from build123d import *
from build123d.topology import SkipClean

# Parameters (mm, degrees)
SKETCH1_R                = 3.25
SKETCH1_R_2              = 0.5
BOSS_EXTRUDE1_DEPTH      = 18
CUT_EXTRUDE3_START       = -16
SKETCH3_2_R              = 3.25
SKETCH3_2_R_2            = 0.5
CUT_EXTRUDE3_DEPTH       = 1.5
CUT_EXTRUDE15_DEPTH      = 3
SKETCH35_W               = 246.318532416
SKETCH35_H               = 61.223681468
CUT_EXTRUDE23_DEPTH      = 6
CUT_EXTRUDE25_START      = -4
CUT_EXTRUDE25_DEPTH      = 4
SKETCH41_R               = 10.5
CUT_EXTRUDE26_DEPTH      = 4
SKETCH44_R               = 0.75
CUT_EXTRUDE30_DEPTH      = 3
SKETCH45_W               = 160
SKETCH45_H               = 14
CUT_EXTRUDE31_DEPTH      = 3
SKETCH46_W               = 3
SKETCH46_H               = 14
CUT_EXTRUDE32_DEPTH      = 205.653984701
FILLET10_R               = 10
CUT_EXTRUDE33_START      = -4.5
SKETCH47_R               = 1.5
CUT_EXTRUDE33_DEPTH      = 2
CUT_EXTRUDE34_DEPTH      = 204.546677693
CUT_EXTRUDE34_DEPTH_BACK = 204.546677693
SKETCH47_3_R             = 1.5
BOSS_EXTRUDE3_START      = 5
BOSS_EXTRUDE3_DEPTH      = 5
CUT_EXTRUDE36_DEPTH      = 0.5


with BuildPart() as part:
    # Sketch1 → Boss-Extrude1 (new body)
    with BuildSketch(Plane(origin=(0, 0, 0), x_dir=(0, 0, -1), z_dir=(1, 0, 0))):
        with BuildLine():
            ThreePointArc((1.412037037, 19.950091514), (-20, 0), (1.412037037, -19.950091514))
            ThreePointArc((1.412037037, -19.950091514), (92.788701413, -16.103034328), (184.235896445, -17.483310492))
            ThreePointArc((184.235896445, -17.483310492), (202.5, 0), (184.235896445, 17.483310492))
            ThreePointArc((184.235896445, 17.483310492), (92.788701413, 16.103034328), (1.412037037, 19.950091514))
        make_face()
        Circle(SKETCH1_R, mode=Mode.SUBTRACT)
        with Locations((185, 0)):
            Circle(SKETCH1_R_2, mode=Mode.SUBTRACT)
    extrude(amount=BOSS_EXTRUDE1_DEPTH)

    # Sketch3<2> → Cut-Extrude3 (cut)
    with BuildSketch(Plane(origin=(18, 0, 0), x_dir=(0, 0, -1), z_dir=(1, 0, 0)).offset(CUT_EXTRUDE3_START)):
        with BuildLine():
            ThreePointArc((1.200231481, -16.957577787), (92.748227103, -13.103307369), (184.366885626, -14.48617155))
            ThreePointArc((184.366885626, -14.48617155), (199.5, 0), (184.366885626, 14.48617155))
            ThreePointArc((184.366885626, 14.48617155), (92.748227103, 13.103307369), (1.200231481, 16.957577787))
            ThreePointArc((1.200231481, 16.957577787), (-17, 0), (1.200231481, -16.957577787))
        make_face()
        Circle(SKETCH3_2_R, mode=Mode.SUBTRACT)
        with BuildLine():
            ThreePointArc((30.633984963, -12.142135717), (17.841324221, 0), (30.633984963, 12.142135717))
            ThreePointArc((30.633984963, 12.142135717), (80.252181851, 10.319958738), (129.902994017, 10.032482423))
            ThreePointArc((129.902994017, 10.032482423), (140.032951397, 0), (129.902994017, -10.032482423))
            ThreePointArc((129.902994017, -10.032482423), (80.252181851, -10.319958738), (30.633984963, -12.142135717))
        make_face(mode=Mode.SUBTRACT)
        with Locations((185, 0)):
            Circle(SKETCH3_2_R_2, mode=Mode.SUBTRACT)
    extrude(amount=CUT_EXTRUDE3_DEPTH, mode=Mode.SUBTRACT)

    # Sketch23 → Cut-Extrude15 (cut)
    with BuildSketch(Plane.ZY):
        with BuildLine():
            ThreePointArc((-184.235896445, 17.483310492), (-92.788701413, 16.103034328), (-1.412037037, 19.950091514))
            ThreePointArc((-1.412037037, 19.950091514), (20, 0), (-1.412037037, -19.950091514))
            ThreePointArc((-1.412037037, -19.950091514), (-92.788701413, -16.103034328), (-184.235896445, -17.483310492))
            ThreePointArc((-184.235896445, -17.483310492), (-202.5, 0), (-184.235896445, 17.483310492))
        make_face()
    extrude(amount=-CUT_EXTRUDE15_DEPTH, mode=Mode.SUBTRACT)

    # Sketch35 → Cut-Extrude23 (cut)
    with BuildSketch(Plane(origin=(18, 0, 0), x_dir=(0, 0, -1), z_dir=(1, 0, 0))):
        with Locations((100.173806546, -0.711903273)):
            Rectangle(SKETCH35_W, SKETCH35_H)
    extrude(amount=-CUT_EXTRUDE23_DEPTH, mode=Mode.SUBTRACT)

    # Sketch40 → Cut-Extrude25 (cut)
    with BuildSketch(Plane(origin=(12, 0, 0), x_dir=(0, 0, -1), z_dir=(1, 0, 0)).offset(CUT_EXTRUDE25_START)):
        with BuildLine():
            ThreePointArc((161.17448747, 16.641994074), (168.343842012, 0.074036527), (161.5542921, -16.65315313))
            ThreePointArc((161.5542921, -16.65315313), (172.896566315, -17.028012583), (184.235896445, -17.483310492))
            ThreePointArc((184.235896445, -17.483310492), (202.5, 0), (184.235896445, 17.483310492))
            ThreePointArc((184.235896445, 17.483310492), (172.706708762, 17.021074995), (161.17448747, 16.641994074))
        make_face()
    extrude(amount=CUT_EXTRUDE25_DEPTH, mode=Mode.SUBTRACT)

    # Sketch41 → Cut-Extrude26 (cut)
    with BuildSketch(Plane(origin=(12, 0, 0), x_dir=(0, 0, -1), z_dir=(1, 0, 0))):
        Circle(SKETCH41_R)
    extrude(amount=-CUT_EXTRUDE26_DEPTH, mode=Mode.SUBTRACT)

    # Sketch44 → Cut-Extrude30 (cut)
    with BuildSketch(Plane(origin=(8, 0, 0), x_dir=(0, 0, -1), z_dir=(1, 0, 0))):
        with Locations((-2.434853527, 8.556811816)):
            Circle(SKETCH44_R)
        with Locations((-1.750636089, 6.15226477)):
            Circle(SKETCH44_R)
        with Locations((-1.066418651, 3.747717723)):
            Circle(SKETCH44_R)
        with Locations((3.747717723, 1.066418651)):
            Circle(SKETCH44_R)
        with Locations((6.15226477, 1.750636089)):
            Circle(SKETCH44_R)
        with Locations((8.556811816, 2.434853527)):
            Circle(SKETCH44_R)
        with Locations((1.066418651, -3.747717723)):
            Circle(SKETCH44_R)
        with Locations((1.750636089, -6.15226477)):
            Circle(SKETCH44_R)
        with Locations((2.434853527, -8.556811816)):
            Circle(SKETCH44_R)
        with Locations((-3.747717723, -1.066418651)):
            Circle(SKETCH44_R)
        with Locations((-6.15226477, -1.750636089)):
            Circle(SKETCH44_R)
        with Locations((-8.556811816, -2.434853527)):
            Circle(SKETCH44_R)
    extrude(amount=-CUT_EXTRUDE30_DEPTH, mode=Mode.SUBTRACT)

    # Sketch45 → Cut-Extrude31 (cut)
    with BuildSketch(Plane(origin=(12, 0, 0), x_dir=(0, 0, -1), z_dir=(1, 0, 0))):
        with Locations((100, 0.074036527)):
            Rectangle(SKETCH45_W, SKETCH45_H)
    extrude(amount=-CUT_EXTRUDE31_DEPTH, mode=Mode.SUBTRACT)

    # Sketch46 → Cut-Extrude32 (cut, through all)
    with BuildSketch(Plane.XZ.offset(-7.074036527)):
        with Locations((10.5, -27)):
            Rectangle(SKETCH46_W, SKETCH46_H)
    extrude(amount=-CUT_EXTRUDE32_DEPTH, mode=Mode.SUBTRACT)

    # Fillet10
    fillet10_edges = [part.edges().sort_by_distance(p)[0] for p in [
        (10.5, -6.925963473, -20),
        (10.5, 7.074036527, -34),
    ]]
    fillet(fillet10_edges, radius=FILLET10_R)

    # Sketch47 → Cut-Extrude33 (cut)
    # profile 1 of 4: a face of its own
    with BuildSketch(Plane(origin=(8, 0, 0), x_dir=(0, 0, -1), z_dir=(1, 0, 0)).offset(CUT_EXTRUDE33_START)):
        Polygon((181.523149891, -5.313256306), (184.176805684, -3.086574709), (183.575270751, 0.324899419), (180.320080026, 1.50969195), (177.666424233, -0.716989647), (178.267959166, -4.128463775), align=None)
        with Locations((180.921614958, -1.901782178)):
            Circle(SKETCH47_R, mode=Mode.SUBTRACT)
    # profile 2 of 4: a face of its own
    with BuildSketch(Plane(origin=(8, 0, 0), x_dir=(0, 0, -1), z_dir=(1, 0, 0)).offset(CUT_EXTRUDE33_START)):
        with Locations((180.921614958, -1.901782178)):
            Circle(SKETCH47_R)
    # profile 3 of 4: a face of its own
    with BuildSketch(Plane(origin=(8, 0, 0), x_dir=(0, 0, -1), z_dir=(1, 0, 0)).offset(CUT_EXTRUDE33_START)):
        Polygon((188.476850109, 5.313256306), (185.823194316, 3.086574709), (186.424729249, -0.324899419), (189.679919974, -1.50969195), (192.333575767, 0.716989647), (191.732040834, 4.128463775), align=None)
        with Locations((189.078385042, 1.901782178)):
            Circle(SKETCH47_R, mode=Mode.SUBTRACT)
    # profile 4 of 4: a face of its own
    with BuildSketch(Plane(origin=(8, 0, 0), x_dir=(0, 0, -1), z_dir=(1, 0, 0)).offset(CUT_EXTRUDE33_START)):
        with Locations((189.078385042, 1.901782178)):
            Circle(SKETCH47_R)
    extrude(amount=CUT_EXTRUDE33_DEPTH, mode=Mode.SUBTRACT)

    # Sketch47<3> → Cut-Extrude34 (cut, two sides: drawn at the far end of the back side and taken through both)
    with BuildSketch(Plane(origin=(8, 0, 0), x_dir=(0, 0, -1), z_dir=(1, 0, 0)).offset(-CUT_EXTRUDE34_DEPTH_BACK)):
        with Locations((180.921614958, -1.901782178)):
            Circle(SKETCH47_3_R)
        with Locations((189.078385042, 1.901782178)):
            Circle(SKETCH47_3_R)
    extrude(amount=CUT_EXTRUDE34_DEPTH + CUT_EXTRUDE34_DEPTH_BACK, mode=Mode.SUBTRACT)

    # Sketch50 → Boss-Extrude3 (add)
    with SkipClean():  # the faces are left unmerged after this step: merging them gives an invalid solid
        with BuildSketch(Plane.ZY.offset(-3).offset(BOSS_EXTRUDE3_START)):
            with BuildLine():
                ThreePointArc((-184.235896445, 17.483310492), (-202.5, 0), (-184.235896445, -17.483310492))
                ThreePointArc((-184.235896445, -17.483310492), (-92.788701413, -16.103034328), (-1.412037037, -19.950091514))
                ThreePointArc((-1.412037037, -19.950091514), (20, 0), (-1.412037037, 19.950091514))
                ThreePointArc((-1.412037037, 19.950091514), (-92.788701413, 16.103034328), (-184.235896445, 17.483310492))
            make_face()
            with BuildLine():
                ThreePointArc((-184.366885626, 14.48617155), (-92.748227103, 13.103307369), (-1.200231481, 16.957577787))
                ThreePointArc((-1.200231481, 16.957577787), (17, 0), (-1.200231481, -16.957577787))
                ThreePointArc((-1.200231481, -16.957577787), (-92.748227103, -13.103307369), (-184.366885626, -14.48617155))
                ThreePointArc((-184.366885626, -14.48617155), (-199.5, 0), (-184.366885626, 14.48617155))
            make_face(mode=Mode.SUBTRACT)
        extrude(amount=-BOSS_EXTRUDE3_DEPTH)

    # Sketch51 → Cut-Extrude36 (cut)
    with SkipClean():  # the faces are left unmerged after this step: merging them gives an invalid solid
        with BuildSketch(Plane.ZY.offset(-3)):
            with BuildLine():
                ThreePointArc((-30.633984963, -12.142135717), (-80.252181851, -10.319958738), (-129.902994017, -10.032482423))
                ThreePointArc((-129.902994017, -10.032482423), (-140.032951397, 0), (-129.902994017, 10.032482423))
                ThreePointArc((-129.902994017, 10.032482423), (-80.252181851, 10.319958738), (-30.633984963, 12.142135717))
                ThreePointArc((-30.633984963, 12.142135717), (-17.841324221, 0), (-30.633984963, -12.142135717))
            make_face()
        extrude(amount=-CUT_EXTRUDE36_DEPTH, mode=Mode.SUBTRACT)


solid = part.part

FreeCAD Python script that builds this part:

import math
import FreeCAD as App
import Part
import Sketcher

V = App.Vector
Q = App.Units.Quantity


def edges_at(feature, points):
    """Names of the edges that pass closest to the given points."""
    edges = feature.Shape.Edges
    near = lambda p: min(range(len(edges)), key=lambda i: edges[i].distToShape(Part.Vertex(*p))[0])
    return sorted({f"Edge{near(p) + 1}" for p in points})


def add_polygon(sketch, points):
    """Adds a closed chain of lines whose ends are joined by coincident constraints."""
    first, n = sketch.GeometryCount, len(points)
    for a, b in zip(points, points[1:] + points[:1]):
        sketch.addGeometry(Part.LineSegment(App.Vector(*a, 0), App.Vector(*b, 0)), False)
    for i in range(n):
        sketch.addConstraint(Sketcher.Constraint("Coincident", first + i, 2, first + (i + 1) % n, 1))

doc = App.newDocument("Part")
body = doc.addObject("PartDesign::Body", "Body")

sketch1 = doc.addObject("Sketcher::SketchObject", "Sketch")
body.addObject(sketch1)
sketch1.AttachmentSupport = (doc.YZ_Plane, [""])
sketch1.MapMode = "FlatFace"
sketch1.addGeometry([
    Part.ArcOfCircle(Part.Circle(V(0, 0, 0), V(0, 0, 1), 20), math.radians(-4), math.radians(184)),
    Part.ArcOfCircle(Part.Circle(V(-1616, -114.4, 0), V(0, 0, 1), 1600), math.radians(-2.5), math.radians(4.05)),
    Part.ArcOfCircle(Part.Circle(V(0, -185, 0), V(0, 0, 1), 17.5), math.radians(177), math.radians(363)),
    Part.ArcOfCircle(Part.Circle(V(1616, -114.4, 0), V(0, 0, 1), 1600), math.radians(175.95), math.radians(182.5)),
    Part.Circle(V(0, 0, 0), V(0, 0, 1), 3.2),
    Part.Circle(V(0, -185, 0), V(0, 0, 1), 0.5),
], False)
sketch1.addConstraint([
    Sketcher.Constraint("Tangent", 0, 2, 1, 2),
    Sketcher.Constraint("Tangent", 1, 1, 2, 1),
    Sketcher.Constraint("Tangent", 2, 2, 3, 2),
    Sketcher.Constraint("Tangent", 3, 1, 0, 1),
    Sketcher.Constraint("Coincident", 0, 3, -1, 1),
    Sketcher.Constraint("Coincident", 4, 3, -1, 1),
    Sketcher.Constraint("Coincident", 5, 3, 2, 3),
    Sketcher.Constraint("Equal", 1, 3),
    Sketcher.Constraint("PointOnObject", 2, 3, -2),
    Sketcher.Constraint("Diameter", 5, 1.0),
    Sketcher.Constraint("Radius", 0, 20.0),
    Sketcher.Constraint("Radius", 1, 1600.0),
    Sketcher.Constraint("Diameter", 4, 6.5),
    Sketcher.Constraint("Radius", 2, 17.5),
    Sketcher.Constraint("DistanceY", 2, 3, -1, 1, 185.0),
])
pad1 = doc.addObject("PartDesign::Pad", "Pad")
body.addObject(pad1)
pad1.Profile = sketch1
pad1.Length = 18

sketch2 = doc.addObject("Sketcher::SketchObject", "Sketch001")
body.addObject(sketch2)
sketch2.AttachmentSupport = (doc.YZ_Plane, [""])
sketch2.MapMode = "FlatFace"
sketch2.AttachmentOffset = App.Placement(V(0, 0, 2), App.Rotation())
sketch2.addGeometry([
    Part.ArcOfCircle(Part.Circle(V(-1616, -114.4, 0), V(0, 0, 1), 1603), math.radians(-2.5), math.radians(4.05)),
    Part.ArcOfCircle(Part.Circle(V(0, -185, 0), V(0, 0, 1), 14.5), math.radians(177), math.radians(363)),
    Part.ArcOfCircle(Part.Circle(V(1616, -114.4, 0), V(0, 0, 1), 1603), math.radians(175.95), math.radians(182.5)),
    Part.ArcOfCircle(Part.Circle(V(0, 0, 0), V(0, 0, 1), 17), math.radians(-4), math.radians(184)),
    Part.Circle(V(0, 0, 0), V(0, 0, 1), 3.2),
    Part.ArcOfCircle(Part.Circle(V(-1616, -114.4, 0), V(0, 0, 1), 1606), math.radians(-0.55), math.radians(2.99)),
    Part.ArcOfCircle(Part.Circle(V(0, -30, 0), V(0, 0, 1), 12.2), math.radians(-3), math.radians(183)),
    Part.ArcOfCircle(Part.Circle(V(1616, -114.4, 0), V(0, 0, 1), 1606), math.radians(177.01), math.radians(180.55)),
    Part.ArcOfCircle(Part.Circle(V(0, -130, 0), V(0, 0, 1), 10), math.radians(179), math.radians(361)),
    Part.Circle(V(0, -185, 0), V(0, 0, 1), 0.5),
], False)
sketch2.addConstraint([
    Sketcher.Constraint("Tangent", 0, 1, 1, 1),
    Sketcher.Constraint("Tangent", 1, 2, 2, 2),
    Sketcher.Constraint("Tangent", 2, 1, 3, 1),
    Sketcher.Constraint("Tangent", 3, 2, 0, 2),
    Sketcher.Constraint("Tangent", 5, 2, 6, 2),
    Sketcher.Constraint("Tangent", 6, 1, 7, 1),
    Sketcher.Constraint("Tangent", 7, 2, 8, 2),
    Sketcher.Constraint("Tangent", 8, 1, 5, 1),
    Sketcher.Constraint("Coincident", 3, 3, -1, 1),
    Sketcher.Constraint("Coincident", 4, 3, -1, 1),
    Sketcher.Constraint("Coincident", 5, 3, 0, 3),
    Sketcher.Constraint("Coincident", 7, 3, 2, 3),
    Sketcher.Constraint("Coincident", 9, 3, 1, 3),
    Sketcher.Constraint("Equal", 0, 2),
    Sketcher.Constraint("Equal", 5, 7),
    Sketcher.Constraint("PointOnObject", 1, 3, -2),
    Sketcher.Constraint("Diameter", 9, 1.0),
    Sketcher.Constraint("Radius", 0, 1603.0),
    Sketcher.Constraint("Radius", 3, 17.0),
    Sketcher.Constraint("Radius", 5, 1606.0),
    Sketcher.Constraint("Diameter", 4, 6.5),
    Sketcher.Constraint("Radius", 1, 14.5),
    Sketcher.Constraint("DistanceY", 1, 3, -1, 1, 185.0),
    Sketcher.Constraint("DistanceY", 6, 3, -1, 1, 30.0),
    Sketcher.Constraint("DistanceY", 8, 3, -1, 1, 130.0),
])
pocket1 = doc.addObject("PartDesign::Pocket", "Pocket")
body.addObject(pocket1)
pocket1.Profile = sketch2
pocket1.Length = 1.5
pocket1.Reversed = True

sketch3 = doc.addObject("Sketcher::SketchObject", "Sketch002")
body.addObject(sketch3)
sketch3.AttachmentSupport = (doc.YZ_Plane, [""])
sketch3.MapMode = "FlatFace"
sketch3.addGeometry([
    Part.ArcOfCircle(Part.Circle(V(1616, -114, 0), V(0, 0, 1), 1600), math.radians(175.95), math.radians(182.5)),
    Part.ArcOfCircle(Part.Circle(V(0, -185, 0), V(0, 0, 1), 18), math.radians(177), math.radians(363)),
    Part.ArcOfCircle(Part.Circle(V(-1616, -114, 0), V(0, 0, 1), 1600), math.radians(-2.5), math.radians(4.05)),
    Part.ArcOfCircle(Part.Circle(V(0, 0, 0), V(0, 0, 1), 20), math.radians(-4), math.radians(184)),
], False)
sketch3.addConstraint([
    Sketcher.Constraint("Tangent", 0, 2, 1, 2),
    Sketcher.Constraint("Tangent", 1, 1, 2, 1),
    Sketcher.Constraint("Tangent", 2, 2, 3, 2),
    Sketcher.Constraint("Tangent", 3, 1, 0, 1),
    Sketcher.Constraint("Coincident", 3, 3, -1, 1),
    Sketcher.Constraint("Equal", 0, 2),
    Sketcher.Constraint("PointOnObject", 1, 3, -2),
    Sketcher.Constraint("Radius", 0, 1600.0),
    Sketcher.Constraint("Radius", 3, 20.0),
    Sketcher.Constraint("Radius", 1, 17.5),
    Sketcher.Constraint("DistanceY", 1, 3, -1, 1, 185.0),
])
pocket2 = doc.addObject("PartDesign::Pocket", "Pocket001")
body.addObject(pocket2)
pocket2.Profile = sketch3
pocket2.Length = 3
pocket2.Reversed = True

sketch4 = doc.addObject("Sketcher::SketchObject", "Sketch003")
body.addObject(sketch4)
sketch4.AttachmentSupport = (doc.YZ_Plane, [""])
sketch4.MapMode = "FlatFace"
sketch4.AttachmentOffset = App.Placement(V(0, 0, 18), App.Rotation())
add_polygon(sketch4, [(30, 23), (-31, 23), (-31, -223), (30, -223)])
sketch4.addConstraint([
    Sketcher.Constraint("Horizontal", 0),
    Sketcher.Constraint("Vertical", 1),
    Sketcher.Constraint("Horizontal", 2),
    Sketcher.Constraint("Vertical", 3),
    Sketcher.Constraint("DistanceX", 0, 2, 0, 1, 61.223681),
    Sketcher.Constraint("DistanceY", 1, 2, 1, 1, 246.318532),
    Sketcher.Constraint("DistanceY", -1, 1, 0, 2, 22.98546),
    Sketcher.Constraint("DistanceX", 0, 2, -1, 1, 31.323744),
])
pocket3 = doc.addObject("PartDesign::Pocket", "Pocket002")
body.addObject(pocket3)
pocket3.Profile = sketch4
pocket3.Length = 6

sketch5 = doc.addObject("Sketcher::SketchObject", "Sketch004")
body.addObject(sketch5)
sketch5.AttachmentSupport = (doc.YZ_Plane, [""])
sketch5.MapMode = "FlatFace"
sketch5.AttachmentOffset = App.Placement(V(0, 0, 8), App.Rotation())
sketch5.addGeometry([
    Part.ArcOfCircle(Part.Circle(V(0, -145, 0), V(0, 0, 1), 23), math.radians(-135), math.radians(-44)),
    Part.ArcOfCircle(Part.Circle(V(-1616, -114, 0), V(0, 0, 1), 1600), math.radians(-2.5), math.radians(-1.69)),
    Part.ArcOfCircle(Part.Circle(V(0, -185, 0), V(0, 0, 1), 18), math.radians(177), math.radians(363)),
    Part.ArcOfCircle(Part.Circle(V(1616, -114, 0), V(0, 0, 1), 1600), math.radians(-178.32), math.radians(-177.5)),
], False)
sketch5.addConstraint([
    Sketcher.Constraint("Coincident", 0, 1, 1, 2),
    Sketcher.Constraint("Tangent", 1, 1, 2, 1),
    Sketcher.Constraint("Tangent", 2, 2, 3, 2),
    Sketcher.Constraint("Coincident", 3, 1, 0, 2),
    Sketcher.Constraint("PointOnObject", 2, 3, -2),
    Sketcher.Constraint("Horizontal", 1, 3, 3, 3),
    Sketcher.Constraint("Radius", 2, 17.5),
    Sketcher.Constraint("DistanceY", 0, 3, -1, 1, 145.0),
    Sketcher.Constraint("DistanceY", 2, 3, -1, 1, 185.0),
    Sketcher.Constraint("Radius", 0, 23.345361),
    Sketcher.Constraint("Radius", 1, 1599.999992),
    Sketcher.Constraint("DistanceY", 1, 3, -1, 1, 114.375),
    Sketcher.Constraint("Radius", 3, 1600.000018),
    Sketcher.Constraint("DistanceX", 0, 1, 0, 3, 16.460902),
])
pocket4 = doc.addObject("PartDesign::Pocket", "Pocket003")
body.addObject(pocket4)
pocket4.Profile = sketch5
pocket4.Length = 4
pocket4.Reversed = True

sketch6 = doc.addObject("Sketcher::SketchObject", "Sketch005")
body.addObject(sketch6)
sketch6.AttachmentSupport = (doc.YZ_Plane, [""])
sketch6.MapMode = "FlatFace"
sketch6.AttachmentOffset = App.Placement(V(0, 0, 12), App.Rotation())
sketch6.addGeometry(Part.Circle(V(0, 0, 0), V(0, 0, 1), 10), False)
sketch6.addConstraint([
    Sketcher.Constraint("Coincident", 0, 3, -1, 1),
    Sketcher.Constraint("Diameter", 0, 21.0),
])
pocket5 = doc.addObject("PartDesign::Pocket", "Pocket004")
body.addObject(pocket5)
pocket5.Profile = sketch6
pocket5.Length = 4

sketch7 = doc.addObject("Sketcher::SketchObject", "Sketch006")
body.addObject(sketch7)
sketch7.AttachmentSupport = (doc.YZ_Plane, [""])
sketch7.MapMode = "FlatFace"
sketch7.AttachmentOffset = App.Placement(V(0, 0, 8), App.Rotation())
sketch7.addGeometry([
    Part.Circle(V(8.6, 2.4, 0), V(0, 0, 1), 0.8),
    Part.Circle(V(6.2, 1.8, 0), V(0, 0, 1), 0.8),
    Part.Circle(V(3.7, 1.1, 0), V(0, 0, 1), 0.8),
    Part.Circle(V(1.1, -3.7, 0), V(0, 0, 1), 0.8),
    Part.Circle(V(1.8, -6.2, 0), V(0, 0, 1), 0.8),
    Part.Circle(V(2.4, -8.6, 0), V(0, 0, 1), 0.8),
    Part.Circle(V(-3.7, -1.1, 0), V(0, 0, 1), 0.8),
    Part.Circle(V(-6.2, -1.8, 0), V(0, 0, 1), 0.8),
    Part.Circle(V(-8.6, -2.4, 0), V(0, 0, 1), 0.8),
    Part.Circle(V(-1.1, 3.7, 0), V(0, 0, 1), 0.8),
    Part.Circle(V(-1.8, 6.2, 0), V(0, 0, 1), 0.8),
    Part.Circle(V(-2.4, 8.6, 0), V(0, 0, 1), 0.8),
], False)
sketch7.addConstraint([
    Sketcher.Constraint("Equal", 0, 1),
    Sketcher.Constraint("Equal", 1, 2),
    Sketcher.Constraint("Equal", 2, 3),
    Sketcher.Constraint("Equal", 3, 4),
    Sketcher.Constraint("Equal", 4, 5),
    Sketcher.Constraint("Equal", 5, 6),
    Sketcher.Constraint("Equal", 6, 7),
    Sketcher.Constraint("Equal", 7, 8),
    Sketcher.Constraint("Equal", 8, 9),
    Sketcher.Constraint("Equal", 9, 10),
    Sketcher.Constraint("Equal", 10, 11),
    Sketcher.Constraint("Symmetric", 2, 3, 6, 3, -1, 1),
    Sketcher.Constraint("Symmetric", 1, 3, 7, 3, -1, 1),
    Sketcher.Constraint("Symmetric", 0, 3, 8, 3, -1, 1),
    Sketcher.Constraint("Symmetric", 3, 3, 9, 3, -1, 1),
    Sketcher.Constraint("Symmetric", 4, 3, 10, 3, -1, 1),
    Sketcher.Constraint("Symmetric", 5, 3, 11, 3, -1, 1),
    Sketcher.Constraint("Diameter", 0, 1.5),
    Sketcher.Constraint("DistanceX", 3, 3, 2, 3, 2.681299),
    Sketcher.Constraint("DistanceY", 4, 3, 1, 3, 7.902901),
    Sketcher.Constraint("DistanceY", 3, 3, 6, 3, 2.681299),
    Sketcher.Constraint("DistanceX", 7, 3, 4, 3, 7.902901),
    Sketcher.Constraint("DistanceX", -1, 1, 0, 3, 8.556812),
    Sketcher.Constraint("DistanceY", -1, 1, 2, 3, 1.066419),
    Sketcher.Constraint("DistanceX", -1, 1, 3, 3, 1.066419),
    Sketcher.Constraint("DistanceY", 5, 3, -1, 1, 8.556812),
    Sketcher.Constraint("DistanceY", 3, 3, 0, 3, 6.182571),
    Sketcher.Constraint("DistanceX", 4, 3, 2, 3, 1.997082),
    Sketcher.Constraint("DistanceY", 4, 3, 0, 3, 8.587118),
    Sketcher.Constraint("DistanceX", 5, 3, 1, 3, 3.717411),
])
pocket6 = doc.addObject("PartDesign::Pocket", "Pocket005")
body.addObject(pocket6)
pocket6.Profile = sketch7
pocket6.Length = 3

sketch8 = doc.addObject("Sketcher::SketchObject", "Sketch007")
body.addObject(sketch8)
sketch8.AttachmentSupport = (doc.YZ_Plane, [""])
sketch8.MapMode = "FlatFace"
sketch8.AttachmentOffset = App.Placement(V(0, 0, 12), App.Rotation())
add_polygon(sketch8, [(7, -20), (-7, -20), (-7, -180), (7, -180)])
sketch8.addConstraint([
    Sketcher.Constraint("Horizontal", 0),
    Sketcher.Constraint("Vertical", 1),
    Sketcher.Constraint("Horizontal", 2),
    Sketcher.Constraint("Vertical", 3),
    Sketcher.Constraint("DistanceX", 0, 2, 0, 1, 14.0),
    Sketcher.Constraint("DistanceY", 1, 2, 1, 1, 160.0),
    Sketcher.Constraint("DistanceY", 0, 2, -1, 1, 20.0),
    Sketcher.Constraint("DistanceX", 0, 2, -1, 1, 6.925963),
])
pocket7 = doc.addObject("PartDesign::Pocket", "Pocket006")
body.addObject(pocket7)
pocket7.Profile = sketch8
pocket7.Length = 3

sketch9 = doc.addObject("Sketcher::SketchObject", "Sketch008")
body.addObject(sketch9)
sketch9.AttachmentSupport = (doc.XZ_Plane, [""])
sketch9.MapMode = "FlatFace"
sketch9.AttachmentOffset = App.Placement(V(0, 0, -7.074037), App.Rotation())
add_polygon(sketch9, [(9, -20), (9, -34), (12, -34), (12, -20)])
sketch9.addConstraint([
    Sketcher.Constraint("Vertical", 0),
    Sketcher.Constraint("Horizontal", 1),
    Sketcher.Constraint("Vertical", 2),
    Sketcher.Constraint("Horizontal", 3),
    Sketcher.Constraint("DistanceX", 1, 1, 1, 2, 3.0),
    Sketcher.Constraint("DistanceY", 0, 2, 0, 1, 14.0),
    Sketcher.Constraint("DistanceX", -1, 1, 0, 2, 9.0),
    Sketcher.Constraint("DistanceY", 0, 2, -1, 1, 34.0),
])
pocket8 = doc.addObject("PartDesign::Pocket", "Pocket007")
body.addObject(pocket8)
pocket8.Profile = sketch9
pocket8.Type = "ThroughAll"
doc.recompute()

fillet = doc.addObject("PartDesign::Fillet", "Fillet")
body.addObject(fillet)
fillet.Base = (pocket8, edges_at(pocket8, [(10.5, -6.926, -20), (10.5, 7.074, -34)]))
fillet.Radius = 10

sketch10 = doc.addObject("Sketcher::SketchObject", "Sketch009")
body.addObject(sketch10)
sketch10.AttachmentSupport = (doc.YZ_Plane, [""])
sketch10.MapMode = "FlatFace"
sketch10.AttachmentOffset = App.Placement(V(0, 0, 3.5), App.Rotation())
add_polygon(sketch10, [(-5.3, -181.5), (-3.1, -184.2), (0.3, -183.6), (1.5, -180.3), (-0.7, -177.7), (-4.1, -178.3)])
add_polygon(sketch10, [(5.3, -188.5), (3.1, -185.8), (-0.3, -186.4), (-1.5, -189.7), (0.7, -192.3), (4.1, -191.7)])
sketch10.addConstraint([
    Sketcher.Constraint("Parallel", 0, 3),
    Sketcher.Constraint("Parallel", 1, 4),
    Sketcher.Constraint("Parallel", 2, 5),
    Sketcher.Constraint("Parallel", 3, 6),
    Sketcher.Constraint("Parallel", 4, 7),
    Sketcher.Constraint("Parallel", 5, 8),
    Sketcher.Constraint("Parallel", 6, 9),
    Sketcher.Constraint("Parallel", 7, 10),
    Sketcher.Constraint("Parallel", 8, 11),
    Sketcher.Constraint("Equal", 0, 1),
    Sketcher.Constraint("Equal", 1, 2),
    Sketcher.Constraint("Equal", 2, 3),
    Sketcher.Constraint("Equal", 5, 6),
    Sketcher.Constraint("Equal", 6, 7),
    Sketcher.Constraint("Equal", 7, 8),
    Sketcher.Constraint("Equal", 8, 9),
    Sketcher.Constraint("Angle", 0, Q("-50 deg")),
    Sketcher.Constraint("Angle", 1, Q("10 deg")),
    Sketcher.Constraint("Angle", 2, Q("70 deg")),
    Sketcher.Constraint("Distance", 0, 3.464102),
    Sketcher.Constraint("DistanceX", -1, 1, 1, 2, 0.324899),
    Sketcher.Constraint("DistanceX", 7, 2, -1, 1, 0.324899),
    Sketcher.Constraint("DistanceY", 1, 2, -1, 1, 183.575271),
    Sketcher.Constraint("DistanceY", 7, 2, -1, 1, 186.424729),
])
pocket9 = doc.addObject("PartDesign::Pocket", "Pocket008")
body.addObject(pocket9)
pocket9.Profile = sketch10
pocket9.Length = 2
pocket9.Reversed = True

sketch11 = doc.addObject("Sketcher::SketchObject", "Sketch010")
body.addObject(sketch11)
sketch11.AttachmentSupport = (doc.YZ_Plane, [""])
sketch11.MapMode = "FlatFace"
sketch11.AttachmentOffset = App.Placement(V(0, 0, 8), App.Rotation())
sketch11.addGeometry([
    Part.Circle(V(-1.9, -180.9, 0), V(0, 0, 1), 1.5),
    Part.Circle(V(1.9, -189.1, 0), V(0, 0, 1), 1.5),
], False)
sketch11.addConstraint([
    Sketcher.Constraint("Equal", 0, 1),
    Sketcher.Constraint("Diameter", 0, 3.0),
    Sketcher.Constraint("DistanceY", 1, 3, 0, 3, 8.15677),
    Sketcher.Constraint("DistanceX", 0, 3, -1, 1, 1.901782),
    Sketcher.Constraint("DistanceY", 0, 3, -1, 1, 180.921615),
    Sketcher.Constraint("DistanceX", -1, 1, 1, 3, 1.901782),
])
pocket10 = doc.addObject("PartDesign::Pocket", "Pocket009")
body.addObject(pocket10)
pocket10.Profile = sketch11
pocket10.Type = "ThroughAll"
pocket10.Midplane = True

sketch12 = doc.addObject("Sketcher::SketchObject", "Sketch011")
body.addObject(sketch12)
sketch12.AttachmentSupport = (doc.YZ_Plane, [""])
sketch12.MapMode = "FlatFace"
sketch12.AttachmentOffset = App.Placement(V(0, 0, -2), App.Rotation())
sketch12.addGeometry([
    Part.ArcOfCircle(Part.Circle(V(0, -185, 0), V(0, 0, 1), 18), math.radians(177), math.radians(363)),
    Part.ArcOfCircle(Part.Circle(V(-1616, -114, 0), V(0, 0, 1), 1600), math.radians(-2.5), math.radians(4.05)),
    Part.ArcOfCircle(Part.Circle(V(0, 0, 0), V(0, 0, 1), 20), math.radians(-4), math.radians(184)),
    Part.ArcOfCircle(Part.Circle(V(1616, -114, 0), V(0, 0, 1), 1600), math.radians(175.95), math.radians(182.5)),
    Part.ArcOfCircle(Part.Circle(V(0, -185, 0), V(0, 0, 1), 14), math.radians(177), math.radians(363)),
    Part.ArcOfCircle(Part.Circle(V(1616, -114, 0), V(0, 0, 1), 1603), math.radians(175.95), math.radians(182.5)),
    Part.ArcOfCircle(Part.Circle(V(0, 0, 0), V(0, 0, 1), 17), math.radians(-4), math.radians(184)),
    Part.ArcOfCircle(Part.Circle(V(-1616, -114, 0), V(0, 0, 1), 1603), math.radians(-2.5), math.radians(4.05)),
], False)
sketch12.addConstraint([
    Sketcher.Constraint("Tangent", 0, 1, 1, 1),
    Sketcher.Constraint("Tangent", 1, 2, 2, 2),
    Sketcher.Constraint("Tangent", 2, 1, 3, 1),
    Sketcher.Constraint("Tangent", 3, 2, 0, 2),
    Sketcher.Constraint("Tangent", 4, 2, 5, 2),
    Sketcher.Constraint("Tangent", 5, 1, 6, 1),
    Sketcher.Constraint("Tangent", 6, 2, 7, 2),
    Sketcher.Constraint("Tangent", 7, 1, 4, 1),
    Sketcher.Constraint("Coincident", 2, 3, -1, 1),
    Sketcher.Constraint("Coincident", 6, 3, -1, 1),
    Sketcher.Constraint("Coincident", 4, 3, 0, 3),
    Sketcher.Constraint("Coincident", 5, 3, 3, 3),
    Sketcher.Constraint("Equal", 1, 3),
    Sketcher.Constraint("Equal", 5, 7),
    Sketcher.Constraint("PointOnObject", 0, 3, -2),
    Sketcher.Constraint("Radius", 1, 1600.0),
    Sketcher.Constraint("Radius", 2, 20.0),
    Sketcher.Constraint("Radius", 5, 1603.0),
    Sketcher.Constraint("Radius", 0, 17.5),
    Sketcher.Constraint("DistanceY", 0, 3, -1, 1, 185.0),
])
pad2 = doc.addObject("PartDesign::Pad", "Pad001")
body.addObject(pad2)
pad2.Profile = sketch12
pad2.Length = 5

sketch13 = doc.addObject("Sketcher::SketchObject", "Sketch012")
body.addObject(sketch13)
sketch13.AttachmentSupport = (doc.YZ_Plane, [""])
sketch13.MapMode = "FlatFace"
sketch13.AttachmentOffset = App.Placement(V(0, 0, 3), App.Rotation())
sketch13.addGeometry([
    Part.ArcOfCircle(Part.Circle(V(-1616, -114, 0), V(0, 0, 1), 1606), math.radians(-0.55), math.radians(2.99)),
    Part.ArcOfCircle(Part.Circle(V(0, -30, 0), V(0, 0, 1), 12), math.radians(-3), math.radians(183)),
    Part.ArcOfCircle(Part.Circle(V(1616, -114, 0), V(0, 0, 1), 1606), math.radians(177.01), math.radians(180.55)),
    Part.ArcOfCircle(Part.Circle(V(0, -130, 0), V(0, 0, 1), 10), math.radians(179), math.radians(361)),
], False)
sketch13.addConstraint([
    Sketcher.Constraint("Tangent", 0, 2, 1, 2),
    Sketcher.Constraint("Tangent", 1, 1, 2, 1),
    Sketcher.Constraint("Tangent", 2, 2, 3, 2),
    Sketcher.Constraint("Tangent", 3, 1, 0, 1),
    Sketcher.Constraint("Equal", 0, 2),
    Sketcher.Constraint("Symmetric", 0, 3, 2, 3, -2),
    Sketcher.Constraint("Radius", 0, 1606.0),
    Sketcher.Constraint("DistanceY", 1, 3, -1, 1, 30.0),
    Sketcher.Constraint("DistanceY", 3, 3, -1, 1, 130.0),
    Sketcher.Constraint("Radius", 3, 10.032951),
    Sketcher.Constraint("DistanceY", 0, 3, -1, 1, 114.375),
])
pocket11 = doc.addObject("PartDesign::Pocket", "Pocket010")
body.addObject(pocket11)
pocket11.Profile = sketch13
pocket11.Length = 0.5
pocket11.Reversed = True

doc.recompute()
